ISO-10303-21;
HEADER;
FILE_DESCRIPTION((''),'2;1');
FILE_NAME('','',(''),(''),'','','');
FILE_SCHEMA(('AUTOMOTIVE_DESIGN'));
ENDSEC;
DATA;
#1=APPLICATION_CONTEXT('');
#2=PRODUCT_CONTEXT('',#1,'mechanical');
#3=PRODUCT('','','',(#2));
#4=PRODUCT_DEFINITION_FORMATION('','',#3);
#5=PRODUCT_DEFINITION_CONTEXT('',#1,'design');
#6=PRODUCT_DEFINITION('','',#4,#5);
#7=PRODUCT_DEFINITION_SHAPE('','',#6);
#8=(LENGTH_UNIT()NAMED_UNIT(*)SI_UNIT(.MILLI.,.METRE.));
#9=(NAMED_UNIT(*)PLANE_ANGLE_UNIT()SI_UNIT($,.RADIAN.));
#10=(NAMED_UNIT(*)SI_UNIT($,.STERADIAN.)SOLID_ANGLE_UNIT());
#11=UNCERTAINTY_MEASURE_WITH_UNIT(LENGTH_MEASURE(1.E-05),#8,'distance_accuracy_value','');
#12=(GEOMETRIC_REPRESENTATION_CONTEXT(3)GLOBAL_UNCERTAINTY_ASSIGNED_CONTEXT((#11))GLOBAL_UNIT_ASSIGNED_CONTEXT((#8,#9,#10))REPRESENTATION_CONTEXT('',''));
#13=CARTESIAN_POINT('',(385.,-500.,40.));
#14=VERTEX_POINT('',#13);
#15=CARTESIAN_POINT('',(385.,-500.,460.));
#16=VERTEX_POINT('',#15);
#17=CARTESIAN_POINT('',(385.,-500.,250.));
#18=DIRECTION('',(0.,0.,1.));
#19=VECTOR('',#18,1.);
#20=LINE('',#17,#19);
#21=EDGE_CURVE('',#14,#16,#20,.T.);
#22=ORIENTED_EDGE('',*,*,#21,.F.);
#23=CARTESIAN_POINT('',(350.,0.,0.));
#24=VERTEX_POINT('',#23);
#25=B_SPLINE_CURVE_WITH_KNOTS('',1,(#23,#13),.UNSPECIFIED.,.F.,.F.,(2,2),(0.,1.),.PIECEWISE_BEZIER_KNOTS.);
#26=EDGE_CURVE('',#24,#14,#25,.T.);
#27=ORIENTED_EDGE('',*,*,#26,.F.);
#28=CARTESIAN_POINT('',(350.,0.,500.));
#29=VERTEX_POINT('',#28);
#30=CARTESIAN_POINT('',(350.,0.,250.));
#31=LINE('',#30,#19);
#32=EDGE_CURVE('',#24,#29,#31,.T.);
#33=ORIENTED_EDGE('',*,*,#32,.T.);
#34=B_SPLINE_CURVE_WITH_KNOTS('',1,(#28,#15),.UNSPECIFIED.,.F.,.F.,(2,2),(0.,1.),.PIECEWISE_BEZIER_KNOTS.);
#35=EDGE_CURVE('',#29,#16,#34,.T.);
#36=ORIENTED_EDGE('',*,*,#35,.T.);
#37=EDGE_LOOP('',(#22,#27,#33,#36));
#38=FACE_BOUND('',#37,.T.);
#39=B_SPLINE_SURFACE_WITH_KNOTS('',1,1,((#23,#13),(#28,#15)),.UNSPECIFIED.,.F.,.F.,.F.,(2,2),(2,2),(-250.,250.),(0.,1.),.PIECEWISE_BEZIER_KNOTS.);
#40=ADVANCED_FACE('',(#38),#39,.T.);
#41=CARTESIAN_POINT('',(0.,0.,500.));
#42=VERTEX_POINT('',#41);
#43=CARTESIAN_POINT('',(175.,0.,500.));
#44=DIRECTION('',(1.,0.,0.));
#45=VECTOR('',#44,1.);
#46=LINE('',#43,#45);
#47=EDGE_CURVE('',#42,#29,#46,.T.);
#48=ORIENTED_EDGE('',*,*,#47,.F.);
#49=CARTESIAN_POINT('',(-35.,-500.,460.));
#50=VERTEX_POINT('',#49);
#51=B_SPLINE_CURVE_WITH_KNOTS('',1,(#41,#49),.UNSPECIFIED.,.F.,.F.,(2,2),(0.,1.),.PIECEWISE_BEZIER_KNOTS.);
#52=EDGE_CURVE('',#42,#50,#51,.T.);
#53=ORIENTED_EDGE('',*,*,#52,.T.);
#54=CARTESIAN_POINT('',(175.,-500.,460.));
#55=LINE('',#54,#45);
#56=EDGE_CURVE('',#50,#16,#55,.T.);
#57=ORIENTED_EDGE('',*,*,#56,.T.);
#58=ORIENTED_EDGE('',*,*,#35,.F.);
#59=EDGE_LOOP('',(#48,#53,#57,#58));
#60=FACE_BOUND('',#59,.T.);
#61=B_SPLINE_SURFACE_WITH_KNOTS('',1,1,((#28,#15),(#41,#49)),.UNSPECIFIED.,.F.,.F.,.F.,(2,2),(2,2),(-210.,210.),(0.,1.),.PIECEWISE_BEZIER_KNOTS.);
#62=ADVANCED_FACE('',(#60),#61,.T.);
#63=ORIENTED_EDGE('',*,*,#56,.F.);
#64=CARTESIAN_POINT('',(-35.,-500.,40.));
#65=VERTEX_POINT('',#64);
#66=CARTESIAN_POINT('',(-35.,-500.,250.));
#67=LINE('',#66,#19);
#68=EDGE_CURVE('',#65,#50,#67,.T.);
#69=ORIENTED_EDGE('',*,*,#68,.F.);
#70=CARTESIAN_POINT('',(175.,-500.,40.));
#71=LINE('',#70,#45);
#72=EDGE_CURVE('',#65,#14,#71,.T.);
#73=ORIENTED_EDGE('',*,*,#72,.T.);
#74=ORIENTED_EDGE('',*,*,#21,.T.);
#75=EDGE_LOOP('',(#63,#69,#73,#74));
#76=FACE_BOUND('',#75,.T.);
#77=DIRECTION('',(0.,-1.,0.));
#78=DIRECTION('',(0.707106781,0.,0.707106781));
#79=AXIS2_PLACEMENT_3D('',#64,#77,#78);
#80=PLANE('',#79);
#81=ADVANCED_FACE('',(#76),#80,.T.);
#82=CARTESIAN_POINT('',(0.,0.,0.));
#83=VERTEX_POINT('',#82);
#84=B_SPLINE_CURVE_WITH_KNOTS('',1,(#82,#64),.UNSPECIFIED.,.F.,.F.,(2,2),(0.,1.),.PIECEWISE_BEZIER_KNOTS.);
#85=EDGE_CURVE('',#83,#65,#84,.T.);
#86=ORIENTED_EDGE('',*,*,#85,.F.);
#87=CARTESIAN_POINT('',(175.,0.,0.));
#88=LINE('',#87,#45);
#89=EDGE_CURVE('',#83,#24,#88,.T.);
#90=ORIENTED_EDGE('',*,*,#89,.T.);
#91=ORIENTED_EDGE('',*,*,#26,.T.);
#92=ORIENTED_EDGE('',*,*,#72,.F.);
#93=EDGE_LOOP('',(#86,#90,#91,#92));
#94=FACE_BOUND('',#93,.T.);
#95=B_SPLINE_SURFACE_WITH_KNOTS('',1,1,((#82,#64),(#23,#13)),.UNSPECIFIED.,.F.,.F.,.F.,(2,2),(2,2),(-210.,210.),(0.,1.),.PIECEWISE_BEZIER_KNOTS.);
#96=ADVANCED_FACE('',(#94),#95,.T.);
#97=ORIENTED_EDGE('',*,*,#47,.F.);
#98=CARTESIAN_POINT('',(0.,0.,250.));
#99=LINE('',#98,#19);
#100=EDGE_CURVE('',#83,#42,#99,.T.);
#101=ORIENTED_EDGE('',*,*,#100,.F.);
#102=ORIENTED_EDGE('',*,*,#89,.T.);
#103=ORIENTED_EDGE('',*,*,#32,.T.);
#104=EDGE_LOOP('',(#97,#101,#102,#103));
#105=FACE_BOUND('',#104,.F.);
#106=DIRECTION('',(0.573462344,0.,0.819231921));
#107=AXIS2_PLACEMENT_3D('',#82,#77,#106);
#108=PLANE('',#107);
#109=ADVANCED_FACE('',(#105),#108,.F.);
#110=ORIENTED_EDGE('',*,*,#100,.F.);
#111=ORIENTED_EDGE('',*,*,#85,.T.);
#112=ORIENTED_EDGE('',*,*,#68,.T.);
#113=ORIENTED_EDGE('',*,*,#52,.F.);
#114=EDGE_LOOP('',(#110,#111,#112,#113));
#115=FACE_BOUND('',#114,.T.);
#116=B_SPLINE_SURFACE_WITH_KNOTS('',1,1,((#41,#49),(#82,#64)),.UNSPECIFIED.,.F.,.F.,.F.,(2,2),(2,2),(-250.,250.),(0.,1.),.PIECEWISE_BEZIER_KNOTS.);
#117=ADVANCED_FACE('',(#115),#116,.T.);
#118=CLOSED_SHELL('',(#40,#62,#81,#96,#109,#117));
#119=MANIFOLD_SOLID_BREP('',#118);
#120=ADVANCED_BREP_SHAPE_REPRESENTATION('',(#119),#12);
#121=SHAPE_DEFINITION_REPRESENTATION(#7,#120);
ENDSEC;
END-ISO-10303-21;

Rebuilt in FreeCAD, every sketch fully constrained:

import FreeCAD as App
import Part
import Sketcher

V = App.Vector
Q = App.Units.Quantity

doc = App.newDocument("Part")
body = doc.addObject("PartDesign::Body", "Body")

# Sketch on XZ plane
sketch1 = doc.addObject("Sketcher::SketchObject", "Sketch")
body.addObject(sketch1)
sketch1.AttachmentSupport = (doc.XZ_Plane, [""])
sketch1.MapMode = "FlatFace"
sketch1.addGeometry(Part.LineSegment(V(0, 500, 0), V(0, 0, 0)), False)
sketch1.addGeometry(Part.LineSegment(V(0, 0, 0), V(350, 0, 0)), False)
sketch1.addGeometry(Part.LineSegment(V(350, 0, 0), V(350, 500, 0)), False)
sketch1.addGeometry(Part.LineSegment(V(350, 500, 0), V(0, 500, 0)), False)
sketch1.addConstraint(Sketcher.Constraint("Coincident", 0, 2, 1, 1))
sketch1.addConstraint(Sketcher.Constraint("Coincident", 1, 2, 2, 1))
sketch1.addConstraint(Sketcher.Constraint("Coincident", 2, 2, 3, 1))
sketch1.addConstraint(Sketcher.Constraint("Coincident", 3, 2, 0, 1))
sketch1.addConstraint(Sketcher.Constraint("Vertical", 0))
sketch1.addConstraint(Sketcher.Constraint("Horizontal", 1))
sketch1.addConstraint(Sketcher.Constraint("Vertical", 2))
sketch1.addConstraint(Sketcher.Constraint("Horizontal", 3))
sketch1.addConstraint(Sketcher.Constraint("Coincident", 0, 2, -1, 1))
sketch1.addConstraint(Sketcher.Constraint("DistanceX", 1, 1, 1, 2, Q("350 mm")))
sketch1.addConstraint(Sketcher.Constraint("DistanceY", 0, 2, 0, 1, Q("500 mm")))

# Sketch on XZ plane
sketch2 = doc.addObject("Sketcher::SketchObject", "Sketch001")
body.addObject(sketch2)
sketch2.AttachmentSupport = (doc.XZ_Plane, [""])
sketch2.MapMode = "FlatFace"
sketch2.AttachmentOffset = App.Placement(V(0, 0, 500), App.Rotation())
sketch2.addGeometry(Part.LineSegment(V(-35, 460, 0), V(-35, 40, 0)), False)
sketch2.addGeometry(Part.LineSegment(V(-35, 40, 0), V(385, 40, 0)), False)
sketch2.addGeometry(Part.LineSegment(V(385, 40, 0), V(385, 460, 0)), False)
sketch2.addGeometry(Part.LineSegment(V(385, 460, 0), V(-35, 460, 0)), False)
sketch2.addConstraint(Sketcher.Constraint("Coincident", 0, 2, 1, 1))
sketch2.addConstraint(Sketcher.Constraint("Coincident", 1, 2, 2, 1))
sketch2.addConstraint(Sketcher.Constraint("Coincident", 2, 2, 3, 1))
sketch2.addConstraint(Sketcher.Constraint("Coincident", 3, 2, 0, 1))
sketch2.addConstraint(Sketcher.Constraint("Vertical", 0))
sketch2.addConstraint(Sketcher.Constraint("Horizontal", 1))
sketch2.addConstraint(Sketcher.Constraint("Vertical", 2))
sketch2.addConstraint(Sketcher.Constraint("Horizontal", 3))
sketch2.addConstraint(Sketcher.Constraint("Equal", 3, 0))
sketch2.addConstraint(Sketcher.Constraint("DistanceX", 1, 1, 1, 2, Q("420 mm")))
sketch2.addConstraint(Sketcher.Constraint("DistanceX", 0, 2, -1, 1, Q("35 mm")))
sketch2.addConstraint(Sketcher.Constraint("DistanceY", -1, 1, 0, 2, Q("40 mm")))

additiveloft = doc.addObject("PartDesign::AdditiveLoft", "AdditiveLoft")
body.addObject(additiveloft)
additiveloft.Profile = sketch1
additiveloft.Sections = [sketch2]

doc.recompute()
